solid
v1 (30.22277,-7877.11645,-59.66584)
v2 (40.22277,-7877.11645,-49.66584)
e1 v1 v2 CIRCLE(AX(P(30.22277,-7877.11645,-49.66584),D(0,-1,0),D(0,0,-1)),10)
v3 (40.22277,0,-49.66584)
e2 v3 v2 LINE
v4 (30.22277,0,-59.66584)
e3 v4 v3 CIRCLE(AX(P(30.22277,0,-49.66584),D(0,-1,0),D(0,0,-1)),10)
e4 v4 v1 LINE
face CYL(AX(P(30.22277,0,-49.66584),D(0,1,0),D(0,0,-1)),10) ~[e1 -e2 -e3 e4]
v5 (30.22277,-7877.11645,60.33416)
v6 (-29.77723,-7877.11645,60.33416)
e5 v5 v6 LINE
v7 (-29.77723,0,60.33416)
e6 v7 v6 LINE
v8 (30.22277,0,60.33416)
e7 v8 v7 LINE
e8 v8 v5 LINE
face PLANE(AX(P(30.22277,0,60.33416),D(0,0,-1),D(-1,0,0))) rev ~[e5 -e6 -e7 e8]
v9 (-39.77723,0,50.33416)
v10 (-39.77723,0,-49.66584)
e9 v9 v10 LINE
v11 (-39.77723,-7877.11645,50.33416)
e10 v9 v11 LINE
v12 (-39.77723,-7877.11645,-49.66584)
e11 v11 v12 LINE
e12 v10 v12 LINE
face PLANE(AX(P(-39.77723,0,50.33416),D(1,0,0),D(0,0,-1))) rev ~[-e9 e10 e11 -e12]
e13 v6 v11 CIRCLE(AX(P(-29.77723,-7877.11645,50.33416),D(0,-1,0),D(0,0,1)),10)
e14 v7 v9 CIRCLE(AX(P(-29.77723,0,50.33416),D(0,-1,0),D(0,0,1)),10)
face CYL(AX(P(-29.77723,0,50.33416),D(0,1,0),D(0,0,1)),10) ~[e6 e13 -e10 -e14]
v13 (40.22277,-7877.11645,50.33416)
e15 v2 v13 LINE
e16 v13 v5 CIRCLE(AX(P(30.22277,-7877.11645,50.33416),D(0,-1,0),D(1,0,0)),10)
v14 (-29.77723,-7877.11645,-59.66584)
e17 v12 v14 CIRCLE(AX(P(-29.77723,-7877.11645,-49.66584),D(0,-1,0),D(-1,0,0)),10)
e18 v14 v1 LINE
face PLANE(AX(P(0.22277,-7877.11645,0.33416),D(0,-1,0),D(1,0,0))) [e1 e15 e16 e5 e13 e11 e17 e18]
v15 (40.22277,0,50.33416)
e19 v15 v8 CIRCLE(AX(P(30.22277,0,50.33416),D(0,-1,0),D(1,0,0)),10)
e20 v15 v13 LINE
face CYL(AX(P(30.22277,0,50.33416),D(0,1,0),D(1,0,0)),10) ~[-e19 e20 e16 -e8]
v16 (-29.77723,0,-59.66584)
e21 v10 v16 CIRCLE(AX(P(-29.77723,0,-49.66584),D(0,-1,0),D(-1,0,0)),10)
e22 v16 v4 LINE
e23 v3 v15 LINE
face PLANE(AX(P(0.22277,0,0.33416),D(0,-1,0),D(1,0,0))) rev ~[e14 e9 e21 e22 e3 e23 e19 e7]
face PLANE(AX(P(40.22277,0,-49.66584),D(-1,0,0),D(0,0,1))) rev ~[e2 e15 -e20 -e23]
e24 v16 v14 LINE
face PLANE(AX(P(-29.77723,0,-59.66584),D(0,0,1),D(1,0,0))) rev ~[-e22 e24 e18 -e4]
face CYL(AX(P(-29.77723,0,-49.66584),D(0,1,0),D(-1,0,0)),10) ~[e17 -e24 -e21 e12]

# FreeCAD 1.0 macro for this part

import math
import FreeCAD as App
import Part
import Sketcher
from FreeCAD import Vector
Q = App.Units.Quantity

doc = App.newDocument("Part")
body = doc.addObject("PartDesign::Body", "Body")

sketch1 = body.newObject("Sketcher::SketchObject", "Sketch")
sketch1.AttachmentSupport = (doc.getObject("XZ_Plane"), [""])
sketch1.MapMode = "FlatFace"
sketch1.addGeometry([
    Part.LineSegment(Vector(30, 60, 0), Vector(-30, 60, 0)),
    Part.ArcOfCircle(Part.Circle(Vector(-30, 50, 0), Vector(0, 0, 1), 10), math.radians(90), math.radians(180)),
    Part.LineSegment(Vector(-40, 50, 0), Vector(-40, -50, 0)),
    Part.ArcOfCircle(Part.Circle(Vector(-30, -50, 0), Vector(0, 0, 1), 10), math.radians(180), math.radians(270)),
    Part.LineSegment(Vector(-30, -60, 0), Vector(30, -60, 0)),
    Part.ArcOfCircle(Part.Circle(Vector(30, -50, 0), Vector(0, 0, 1), 10), math.radians(-90), math.radians(0)),
    Part.LineSegment(Vector(40, -50, 0), Vector(40, 50, 0)),
    Part.ArcOfCircle(Part.Circle(Vector(30, 50, 0), Vector(0, 0, 1), 10), math.radians(0), math.radians(90)),
], False)
sketch1.addConstraint([
    Sketcher.Constraint("Tangent", 0, 2, 1, 1),
    Sketcher.Constraint("Tangent", 1, 2, 2, 1),
    Sketcher.Constraint("Tangent", 2, 2, 3, 1),
    Sketcher.Constraint("Tangent", 3, 2, 4, 1),
    Sketcher.Constraint("Tangent", 4, 2, 5, 1),
    Sketcher.Constraint("Tangent", 5, 2, 6, 1),
    Sketcher.Constraint("Tangent", 6, 2, 7, 1),
    Sketcher.Constraint("Tangent", 7, 2, 0, 1),
    Sketcher.Constraint("Horizontal", 0),
    Sketcher.Constraint("Vertical", 2),
    Sketcher.Constraint("Horizontal", 4),
    Sketcher.Constraint("Vertical", 6),
    Sketcher.Constraint("Equal", 1, 3),
    Sketcher.Constraint("Equal", 3, 5),
    Sketcher.Constraint("Equal", 5, 7),
    Sketcher.Constraint("Radius", 1, Q("10 mm")),
    Sketcher.Constraint("DistanceX", 0, 2, 0, 1, Q("60 mm")),
    Sketcher.Constraint("DistanceY", 2, 2, 2, 1, Q("100 mm")),
    Sketcher.Constraint("DistanceX", 1, 3, -1, 1, Q("29.77723 mm")),
    Sketcher.Constraint("DistanceY", -1, 1, 1, 3, Q("50.33416 mm")),
])
pad1 = body.newObject("PartDesign::Pad", "Pad")
pad1.Profile = sketch1
pad1.Length = 7877.11645

doc.recompute()
